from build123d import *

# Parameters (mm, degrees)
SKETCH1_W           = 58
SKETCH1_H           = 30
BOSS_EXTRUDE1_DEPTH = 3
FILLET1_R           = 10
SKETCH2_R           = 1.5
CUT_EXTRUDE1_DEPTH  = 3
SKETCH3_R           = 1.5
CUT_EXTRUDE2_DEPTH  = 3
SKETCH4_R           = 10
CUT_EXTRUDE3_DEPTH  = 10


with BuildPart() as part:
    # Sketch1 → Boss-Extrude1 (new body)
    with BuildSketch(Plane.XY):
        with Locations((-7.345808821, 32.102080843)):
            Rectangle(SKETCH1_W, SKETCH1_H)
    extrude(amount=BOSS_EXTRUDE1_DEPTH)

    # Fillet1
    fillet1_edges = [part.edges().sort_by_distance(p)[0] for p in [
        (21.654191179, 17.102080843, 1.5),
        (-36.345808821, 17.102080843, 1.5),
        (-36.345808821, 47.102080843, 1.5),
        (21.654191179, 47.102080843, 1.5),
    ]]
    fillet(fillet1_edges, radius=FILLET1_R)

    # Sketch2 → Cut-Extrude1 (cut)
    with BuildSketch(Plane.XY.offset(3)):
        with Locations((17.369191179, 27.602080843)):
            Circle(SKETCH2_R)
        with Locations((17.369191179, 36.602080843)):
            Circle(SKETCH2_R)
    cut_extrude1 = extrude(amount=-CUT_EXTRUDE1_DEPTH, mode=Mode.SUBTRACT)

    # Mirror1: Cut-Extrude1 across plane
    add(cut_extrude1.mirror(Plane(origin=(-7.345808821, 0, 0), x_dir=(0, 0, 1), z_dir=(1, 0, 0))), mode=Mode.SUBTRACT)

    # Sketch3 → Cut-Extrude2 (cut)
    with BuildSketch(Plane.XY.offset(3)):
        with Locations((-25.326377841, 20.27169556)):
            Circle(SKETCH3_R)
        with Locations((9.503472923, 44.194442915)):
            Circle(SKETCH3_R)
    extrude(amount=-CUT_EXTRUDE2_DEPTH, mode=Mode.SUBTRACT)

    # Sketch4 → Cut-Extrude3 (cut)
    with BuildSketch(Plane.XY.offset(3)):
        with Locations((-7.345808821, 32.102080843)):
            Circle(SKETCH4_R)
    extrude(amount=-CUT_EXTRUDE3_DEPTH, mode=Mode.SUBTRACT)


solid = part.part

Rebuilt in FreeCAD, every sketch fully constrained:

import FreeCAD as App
import Part
import Sketcher
Q = App.Units.Quantity


def edges_at(feature, points):
    """Names of the edges that pass closest to the given points."""
    edges = feature.Shape.Edges
    near = lambda p: min(range(len(edges)), key=lambda i: edges[i].distToShape(Part.Vertex(*p))[0])
    return sorted({f"Edge{near(p) + 1}" for p in points})


def add_polygon(sketch, points):
    """Adds a closed chain of lines whose ends are joined by coincident constraints."""
    first, n = sketch.GeometryCount, len(points)
    for a, b in zip(points, points[1:] + points[:1]):
        sketch.addGeometry(Part.LineSegment(App.Vector(*a, 0), App.Vector(*b, 0)), False)
    for i in range(n):
        sketch.addConstraint(Sketcher.Constraint("Coincident", first + i, 2, first + (i + 1) % n, 1))

doc = App.newDocument("Part")
body = doc.addObject("PartDesign::Body", "Body")

# Sketch on XY plane
sketch1 = doc.addObject("Sketcher::SketchObject", "Sketch")
body.addObject(sketch1)
sketch1.AttachmentSupport = (doc.XY_Plane, [""])
sketch1.MapMode = "FlatFace"
add_polygon(sketch1, [(-36.345809, 47.102081), (-36.345809, 17.102081), (21.654191, 17.102081), (21.654191, 47.102081)])  # lines 0-3
sketch1.addConstraint(Sketcher.Constraint("Vertical", 0))
sketch1.addConstraint(Sketcher.Constraint("Horizontal", 1))
sketch1.addConstraint(Sketcher.Constraint("Vertical", 2))
sketch1.addConstraint(Sketcher.Constraint("Horizontal", 3))
sketch1.addConstraint(Sketcher.Constraint("DistanceX", 1, 1, 1, 2, Q("58 mm")))
sketch1.addConstraint(Sketcher.Constraint("DistanceY", 0, 2, 0, 1, Q("30 mm")))
sketch1.addConstraint(Sketcher.Constraint("DistanceX", 0, 2, -1, 1, Q("36.345809 mm")))
sketch1.addConstraint(Sketcher.Constraint("DistanceY", -1, 1, 0, 2, Q("17.102081 mm")))
pad1 = doc.addObject("PartDesign::Pad", "Pad")
body.addObject(pad1)
pad1.Profile = sketch1
pad1.Length = 3
doc.recompute()

fillet = doc.addObject("PartDesign::Fillet", "Fillet")
body.addObject(fillet)
fillet.Base = (pad1, edges_at(pad1, [
    (21.654, 17.102, 1.5),
    (-36.346, 17.102, 1.5),
    (-36.346, 47.102, 1.5),
    (21.654, 47.102, 1.5),
]))
fillet.Radius = 10

# Sketch on XY plane
sketch2 = doc.addObject("Sketcher::SketchObject", "Sketch001")
body.addObject(sketch2)
sketch2.AttachmentSupport = (doc.XY_Plane, [""])
sketch2.MapMode = "FlatFace"
sketch2.AttachmentOffset = App.Placement(App.Vector(0, 0, 3), App.Rotation())
sketch2.addGeometry(Part.Circle(App.Vector(17.369191, 27.602081, 0), App.Vector(0, 0, 1), 1.5), False)
sketch2.addGeometry(Part.Circle(App.Vector(17.369191, 36.602081, 0), App.Vector(0, 0, 1), 1.5), False)
sketch2.addConstraint(Sketcher.Constraint("Equal", 0, 1))
sketch2.addConstraint(Sketcher.Constraint("Vertical", 0, 3, 1, 3))
sketch2.addConstraint(Sketcher.Constraint("Diameter", 0, Q("3 mm")))
sketch2.addConstraint(Sketcher.Constraint("DistanceY", 0, 3, 1, 3, Q("9 mm")))
sketch2.addConstraint(Sketcher.Constraint("DistanceX", -1, 1, 0, 3, Q("17.369191 mm")))
sketch2.addConstraint(Sketcher.Constraint("DistanceY", -1, 1, 0, 3, Q("27.602081 mm")))
pocket1 = doc.addObject("PartDesign::Pocket", "Pocket")
body.addObject(pocket1)
pocket1.Profile = sketch2
pocket1.Length = 3
doc.recompute()

datumplane = doc.addObject("PartDesign::Plane", "DatumPlane")
body.addObject(datumplane)
datumplane.AttachmentSupport = (doc.YZ_Plane, [""])
datumplane.MapMode = "FlatFace"
datumplane.AttachmentOffset = App.Placement(App.Vector(0, 0, -7.345809), App.Rotation())
mirrored = doc.addObject("PartDesign::Mirrored", "Mirrored")
body.addObject(mirrored)
mirrored.Originals = [pocket1]
mirrored.MirrorPlane = (datumplane, [""])
body.Tip = mirrored

# Sketch on XY plane
sketch3 = doc.addObject("Sketcher::SketchObject", "Sketch002")
body.addObject(sketch3)
sketch3.AttachmentSupport = (doc.XY_Plane, [""])
sketch3.MapMode = "FlatFace"
sketch3.AttachmentOffset = App.Placement(App.Vector(0, 0, 3), App.Rotation())
sketch3.addGeometry(Part.Circle(App.Vector(-25.326378, 20.271696, 0), App.Vector(0, 0, 1), 1.5), False)
sketch3.addGeometry(Part.Circle(App.Vector(9.503473, 44.194443, 0), App.Vector(0, 0, 1), 1.5), False)
sketch3.addConstraint(Sketcher.Constraint("Equal", 0, 1))
sketch3.addConstraint(Sketcher.Constraint("Diameter", 0, Q("3 mm")))
sketch3.addConstraint(Sketcher.Constraint("DistanceX", 0, 3, 1, 3, Q("34.829851 mm")))
sketch3.addConstraint(Sketcher.Constraint("DistanceX", 0, 3, -1, 1, Q("25.326378 mm")))
sketch3.addConstraint(Sketcher.Constraint("DistanceY", -1, 1, 0, 3, Q("20.271696 mm")))
sketch3.addConstraint(Sketcher.Constraint("DistanceY", -1, 1, 1, 3, Q("44.194443 mm")))
pocket2 = doc.addObject("PartDesign::Pocket", "Pocket001")
body.addObject(pocket2)
pocket2.Profile = sketch3
pocket2.Length = 3

# Sketch on XY plane
sketch4 = doc.addObject("Sketcher::SketchObject", "Sketch003")
body.addObject(sketch4)
sketch4.AttachmentSupport = (doc.XY_Plane, [""])
sketch4.MapMode = "FlatFace"
sketch4.AttachmentOffset = App.Placement(App.Vector(0, 0, 3), App.Rotation())
sketch4.addGeometry(Part.Circle(App.Vector(-7.345809, 32.102081, 0), App.Vector(0, 0, 1), 10), False)
sketch4.addConstraint(Sketcher.Constraint("Diameter", 0, Q("20 mm")))
sketch4.addConstraint(Sketcher.Constraint("DistanceX", 0, 3, -1, 1, Q("7.345809 mm")))
sketch4.addConstraint(Sketcher.Constraint("DistanceY", -1, 1, 0, 3, Q("32.102081 mm")))
pocket3 = doc.addObject("PartDesign::Pocket", "Pocket002")
body.addObject(pocket3)
pocket3.Profile = sketch4
pocket3.Length = 10

doc.recompute()
